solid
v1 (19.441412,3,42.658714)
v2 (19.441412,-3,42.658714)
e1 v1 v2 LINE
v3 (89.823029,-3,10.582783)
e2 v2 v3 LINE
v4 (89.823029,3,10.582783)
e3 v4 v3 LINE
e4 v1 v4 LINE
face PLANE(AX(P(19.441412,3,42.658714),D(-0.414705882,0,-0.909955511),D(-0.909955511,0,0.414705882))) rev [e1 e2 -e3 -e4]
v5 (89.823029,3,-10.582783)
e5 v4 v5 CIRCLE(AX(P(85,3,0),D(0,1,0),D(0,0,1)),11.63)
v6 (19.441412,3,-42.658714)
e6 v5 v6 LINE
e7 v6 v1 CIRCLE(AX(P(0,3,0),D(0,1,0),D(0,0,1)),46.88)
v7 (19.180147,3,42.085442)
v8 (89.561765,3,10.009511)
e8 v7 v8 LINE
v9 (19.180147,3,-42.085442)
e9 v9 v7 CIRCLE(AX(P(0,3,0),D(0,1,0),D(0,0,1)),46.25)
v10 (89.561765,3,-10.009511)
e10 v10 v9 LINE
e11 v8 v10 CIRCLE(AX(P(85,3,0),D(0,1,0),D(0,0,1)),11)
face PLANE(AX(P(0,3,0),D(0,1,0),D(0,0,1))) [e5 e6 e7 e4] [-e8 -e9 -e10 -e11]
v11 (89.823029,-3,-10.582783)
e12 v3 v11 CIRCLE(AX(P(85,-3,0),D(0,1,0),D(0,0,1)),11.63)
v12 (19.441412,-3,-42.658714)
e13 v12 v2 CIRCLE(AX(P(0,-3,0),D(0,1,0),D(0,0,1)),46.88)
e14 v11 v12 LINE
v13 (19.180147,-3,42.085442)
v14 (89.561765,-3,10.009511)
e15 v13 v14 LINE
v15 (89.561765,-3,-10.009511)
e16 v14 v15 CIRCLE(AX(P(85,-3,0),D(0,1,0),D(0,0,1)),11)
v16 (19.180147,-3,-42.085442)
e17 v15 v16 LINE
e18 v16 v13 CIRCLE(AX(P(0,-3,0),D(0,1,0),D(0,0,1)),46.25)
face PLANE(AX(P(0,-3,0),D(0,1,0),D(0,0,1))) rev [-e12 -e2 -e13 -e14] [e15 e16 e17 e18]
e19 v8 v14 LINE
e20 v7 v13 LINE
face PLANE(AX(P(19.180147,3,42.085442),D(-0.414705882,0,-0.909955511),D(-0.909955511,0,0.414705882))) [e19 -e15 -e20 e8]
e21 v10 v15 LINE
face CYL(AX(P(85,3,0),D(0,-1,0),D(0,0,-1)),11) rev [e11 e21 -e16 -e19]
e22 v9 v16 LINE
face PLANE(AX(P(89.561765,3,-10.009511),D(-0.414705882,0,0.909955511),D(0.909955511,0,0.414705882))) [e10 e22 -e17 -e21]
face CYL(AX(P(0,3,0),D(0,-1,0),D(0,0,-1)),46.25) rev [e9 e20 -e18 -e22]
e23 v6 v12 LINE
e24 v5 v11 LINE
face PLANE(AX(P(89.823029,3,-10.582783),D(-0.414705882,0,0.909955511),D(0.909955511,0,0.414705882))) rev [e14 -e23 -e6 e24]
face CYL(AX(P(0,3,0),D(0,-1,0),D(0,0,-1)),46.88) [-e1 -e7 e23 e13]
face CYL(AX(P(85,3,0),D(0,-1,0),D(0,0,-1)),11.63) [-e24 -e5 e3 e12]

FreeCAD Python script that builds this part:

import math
import FreeCAD as App
import Part
import Sketcher
Q = App.Units.Quantity

doc = App.newDocument("Part")
body = doc.addObject("PartDesign::Body", "Body")

sketch1 = body.newObject("Sketcher::SketchObject", "Sketch")
sketch1.AttachmentSupport = (doc.getObject("XZ_Plane"), [""])
sketch1.MapMode = "FlatFace"
sketch1.addGeometry([
    Part.LineSegment(App.Vector(19, 43, 0), App.Vector(90, 11, 0)),
    Part.ArcOfCircle(Part.Circle(App.Vector(85, 0, 0), App.Vector(0, 0, 1), 12), math.radians(-65), math.radians(65)),
    Part.LineSegment(App.Vector(90, -11, 0), App.Vector(19, -43, 0)),
    Part.ArcOfCircle(Part.Circle(App.Vector(0, 0, 0), App.Vector(0, 0, 1), 47), math.radians(65), math.radians(295)),
    Part.LineSegment(App.Vector(19, -42, 0), App.Vector(90, -10, 0)),
    Part.ArcOfCircle(Part.Circle(App.Vector(85, 0, 0), App.Vector(0, 0, 1), 11), math.radians(-65), math.radians(65)),
    Part.LineSegment(App.Vector(90, 10, 0), App.Vector(19, 42, 0)),
    Part.ArcOfCircle(Part.Circle(App.Vector(0, 0, 0), App.Vector(0, 0, 1), 46), math.radians(65), math.radians(295)),
], False)
sketch1.addConstraint([
    Sketcher.Constraint("Tangent", 0, 2, 1, 2),
    Sketcher.Constraint("Tangent", 1, 1, 2, 1),
    Sketcher.Constraint("Tangent", 2, 2, 3, 2),
    Sketcher.Constraint("Tangent", 3, 1, 0, 1),
    Sketcher.Constraint("Tangent", 4, 2, 5, 1),
    Sketcher.Constraint("Tangent", 5, 2, 6, 1),
    Sketcher.Constraint("Tangent", 6, 2, 7, 1),
    Sketcher.Constraint("Tangent", 7, 2, 4, 1),
    Sketcher.Constraint("Coincident", 3, 3, -1, 1),
    Sketcher.Constraint("Coincident", 7, 3, -1, 1),
    Sketcher.Constraint("Coincident", 5, 3, 1, 3),
    Sketcher.Constraint("PointOnObject", 1, 3, -1),
    Sketcher.Constraint("Parallel", 2, 4),
    Sketcher.Constraint("Radius", 5, Q("11 mm")),
    Sketcher.Constraint("Radius", 1, Q("11.63 mm")),
    Sketcher.Constraint("Radius", 3, Q("46.88 mm")),
    Sketcher.Constraint("DistanceX", -1, 1, 1, 3, Q("85 mm")),
])
pad1 = body.newObject("PartDesign::Pad", "Pad")
pad1.Profile = sketch1
pad1.Length = 6
pad1.Midplane = True

doc.recompute()
